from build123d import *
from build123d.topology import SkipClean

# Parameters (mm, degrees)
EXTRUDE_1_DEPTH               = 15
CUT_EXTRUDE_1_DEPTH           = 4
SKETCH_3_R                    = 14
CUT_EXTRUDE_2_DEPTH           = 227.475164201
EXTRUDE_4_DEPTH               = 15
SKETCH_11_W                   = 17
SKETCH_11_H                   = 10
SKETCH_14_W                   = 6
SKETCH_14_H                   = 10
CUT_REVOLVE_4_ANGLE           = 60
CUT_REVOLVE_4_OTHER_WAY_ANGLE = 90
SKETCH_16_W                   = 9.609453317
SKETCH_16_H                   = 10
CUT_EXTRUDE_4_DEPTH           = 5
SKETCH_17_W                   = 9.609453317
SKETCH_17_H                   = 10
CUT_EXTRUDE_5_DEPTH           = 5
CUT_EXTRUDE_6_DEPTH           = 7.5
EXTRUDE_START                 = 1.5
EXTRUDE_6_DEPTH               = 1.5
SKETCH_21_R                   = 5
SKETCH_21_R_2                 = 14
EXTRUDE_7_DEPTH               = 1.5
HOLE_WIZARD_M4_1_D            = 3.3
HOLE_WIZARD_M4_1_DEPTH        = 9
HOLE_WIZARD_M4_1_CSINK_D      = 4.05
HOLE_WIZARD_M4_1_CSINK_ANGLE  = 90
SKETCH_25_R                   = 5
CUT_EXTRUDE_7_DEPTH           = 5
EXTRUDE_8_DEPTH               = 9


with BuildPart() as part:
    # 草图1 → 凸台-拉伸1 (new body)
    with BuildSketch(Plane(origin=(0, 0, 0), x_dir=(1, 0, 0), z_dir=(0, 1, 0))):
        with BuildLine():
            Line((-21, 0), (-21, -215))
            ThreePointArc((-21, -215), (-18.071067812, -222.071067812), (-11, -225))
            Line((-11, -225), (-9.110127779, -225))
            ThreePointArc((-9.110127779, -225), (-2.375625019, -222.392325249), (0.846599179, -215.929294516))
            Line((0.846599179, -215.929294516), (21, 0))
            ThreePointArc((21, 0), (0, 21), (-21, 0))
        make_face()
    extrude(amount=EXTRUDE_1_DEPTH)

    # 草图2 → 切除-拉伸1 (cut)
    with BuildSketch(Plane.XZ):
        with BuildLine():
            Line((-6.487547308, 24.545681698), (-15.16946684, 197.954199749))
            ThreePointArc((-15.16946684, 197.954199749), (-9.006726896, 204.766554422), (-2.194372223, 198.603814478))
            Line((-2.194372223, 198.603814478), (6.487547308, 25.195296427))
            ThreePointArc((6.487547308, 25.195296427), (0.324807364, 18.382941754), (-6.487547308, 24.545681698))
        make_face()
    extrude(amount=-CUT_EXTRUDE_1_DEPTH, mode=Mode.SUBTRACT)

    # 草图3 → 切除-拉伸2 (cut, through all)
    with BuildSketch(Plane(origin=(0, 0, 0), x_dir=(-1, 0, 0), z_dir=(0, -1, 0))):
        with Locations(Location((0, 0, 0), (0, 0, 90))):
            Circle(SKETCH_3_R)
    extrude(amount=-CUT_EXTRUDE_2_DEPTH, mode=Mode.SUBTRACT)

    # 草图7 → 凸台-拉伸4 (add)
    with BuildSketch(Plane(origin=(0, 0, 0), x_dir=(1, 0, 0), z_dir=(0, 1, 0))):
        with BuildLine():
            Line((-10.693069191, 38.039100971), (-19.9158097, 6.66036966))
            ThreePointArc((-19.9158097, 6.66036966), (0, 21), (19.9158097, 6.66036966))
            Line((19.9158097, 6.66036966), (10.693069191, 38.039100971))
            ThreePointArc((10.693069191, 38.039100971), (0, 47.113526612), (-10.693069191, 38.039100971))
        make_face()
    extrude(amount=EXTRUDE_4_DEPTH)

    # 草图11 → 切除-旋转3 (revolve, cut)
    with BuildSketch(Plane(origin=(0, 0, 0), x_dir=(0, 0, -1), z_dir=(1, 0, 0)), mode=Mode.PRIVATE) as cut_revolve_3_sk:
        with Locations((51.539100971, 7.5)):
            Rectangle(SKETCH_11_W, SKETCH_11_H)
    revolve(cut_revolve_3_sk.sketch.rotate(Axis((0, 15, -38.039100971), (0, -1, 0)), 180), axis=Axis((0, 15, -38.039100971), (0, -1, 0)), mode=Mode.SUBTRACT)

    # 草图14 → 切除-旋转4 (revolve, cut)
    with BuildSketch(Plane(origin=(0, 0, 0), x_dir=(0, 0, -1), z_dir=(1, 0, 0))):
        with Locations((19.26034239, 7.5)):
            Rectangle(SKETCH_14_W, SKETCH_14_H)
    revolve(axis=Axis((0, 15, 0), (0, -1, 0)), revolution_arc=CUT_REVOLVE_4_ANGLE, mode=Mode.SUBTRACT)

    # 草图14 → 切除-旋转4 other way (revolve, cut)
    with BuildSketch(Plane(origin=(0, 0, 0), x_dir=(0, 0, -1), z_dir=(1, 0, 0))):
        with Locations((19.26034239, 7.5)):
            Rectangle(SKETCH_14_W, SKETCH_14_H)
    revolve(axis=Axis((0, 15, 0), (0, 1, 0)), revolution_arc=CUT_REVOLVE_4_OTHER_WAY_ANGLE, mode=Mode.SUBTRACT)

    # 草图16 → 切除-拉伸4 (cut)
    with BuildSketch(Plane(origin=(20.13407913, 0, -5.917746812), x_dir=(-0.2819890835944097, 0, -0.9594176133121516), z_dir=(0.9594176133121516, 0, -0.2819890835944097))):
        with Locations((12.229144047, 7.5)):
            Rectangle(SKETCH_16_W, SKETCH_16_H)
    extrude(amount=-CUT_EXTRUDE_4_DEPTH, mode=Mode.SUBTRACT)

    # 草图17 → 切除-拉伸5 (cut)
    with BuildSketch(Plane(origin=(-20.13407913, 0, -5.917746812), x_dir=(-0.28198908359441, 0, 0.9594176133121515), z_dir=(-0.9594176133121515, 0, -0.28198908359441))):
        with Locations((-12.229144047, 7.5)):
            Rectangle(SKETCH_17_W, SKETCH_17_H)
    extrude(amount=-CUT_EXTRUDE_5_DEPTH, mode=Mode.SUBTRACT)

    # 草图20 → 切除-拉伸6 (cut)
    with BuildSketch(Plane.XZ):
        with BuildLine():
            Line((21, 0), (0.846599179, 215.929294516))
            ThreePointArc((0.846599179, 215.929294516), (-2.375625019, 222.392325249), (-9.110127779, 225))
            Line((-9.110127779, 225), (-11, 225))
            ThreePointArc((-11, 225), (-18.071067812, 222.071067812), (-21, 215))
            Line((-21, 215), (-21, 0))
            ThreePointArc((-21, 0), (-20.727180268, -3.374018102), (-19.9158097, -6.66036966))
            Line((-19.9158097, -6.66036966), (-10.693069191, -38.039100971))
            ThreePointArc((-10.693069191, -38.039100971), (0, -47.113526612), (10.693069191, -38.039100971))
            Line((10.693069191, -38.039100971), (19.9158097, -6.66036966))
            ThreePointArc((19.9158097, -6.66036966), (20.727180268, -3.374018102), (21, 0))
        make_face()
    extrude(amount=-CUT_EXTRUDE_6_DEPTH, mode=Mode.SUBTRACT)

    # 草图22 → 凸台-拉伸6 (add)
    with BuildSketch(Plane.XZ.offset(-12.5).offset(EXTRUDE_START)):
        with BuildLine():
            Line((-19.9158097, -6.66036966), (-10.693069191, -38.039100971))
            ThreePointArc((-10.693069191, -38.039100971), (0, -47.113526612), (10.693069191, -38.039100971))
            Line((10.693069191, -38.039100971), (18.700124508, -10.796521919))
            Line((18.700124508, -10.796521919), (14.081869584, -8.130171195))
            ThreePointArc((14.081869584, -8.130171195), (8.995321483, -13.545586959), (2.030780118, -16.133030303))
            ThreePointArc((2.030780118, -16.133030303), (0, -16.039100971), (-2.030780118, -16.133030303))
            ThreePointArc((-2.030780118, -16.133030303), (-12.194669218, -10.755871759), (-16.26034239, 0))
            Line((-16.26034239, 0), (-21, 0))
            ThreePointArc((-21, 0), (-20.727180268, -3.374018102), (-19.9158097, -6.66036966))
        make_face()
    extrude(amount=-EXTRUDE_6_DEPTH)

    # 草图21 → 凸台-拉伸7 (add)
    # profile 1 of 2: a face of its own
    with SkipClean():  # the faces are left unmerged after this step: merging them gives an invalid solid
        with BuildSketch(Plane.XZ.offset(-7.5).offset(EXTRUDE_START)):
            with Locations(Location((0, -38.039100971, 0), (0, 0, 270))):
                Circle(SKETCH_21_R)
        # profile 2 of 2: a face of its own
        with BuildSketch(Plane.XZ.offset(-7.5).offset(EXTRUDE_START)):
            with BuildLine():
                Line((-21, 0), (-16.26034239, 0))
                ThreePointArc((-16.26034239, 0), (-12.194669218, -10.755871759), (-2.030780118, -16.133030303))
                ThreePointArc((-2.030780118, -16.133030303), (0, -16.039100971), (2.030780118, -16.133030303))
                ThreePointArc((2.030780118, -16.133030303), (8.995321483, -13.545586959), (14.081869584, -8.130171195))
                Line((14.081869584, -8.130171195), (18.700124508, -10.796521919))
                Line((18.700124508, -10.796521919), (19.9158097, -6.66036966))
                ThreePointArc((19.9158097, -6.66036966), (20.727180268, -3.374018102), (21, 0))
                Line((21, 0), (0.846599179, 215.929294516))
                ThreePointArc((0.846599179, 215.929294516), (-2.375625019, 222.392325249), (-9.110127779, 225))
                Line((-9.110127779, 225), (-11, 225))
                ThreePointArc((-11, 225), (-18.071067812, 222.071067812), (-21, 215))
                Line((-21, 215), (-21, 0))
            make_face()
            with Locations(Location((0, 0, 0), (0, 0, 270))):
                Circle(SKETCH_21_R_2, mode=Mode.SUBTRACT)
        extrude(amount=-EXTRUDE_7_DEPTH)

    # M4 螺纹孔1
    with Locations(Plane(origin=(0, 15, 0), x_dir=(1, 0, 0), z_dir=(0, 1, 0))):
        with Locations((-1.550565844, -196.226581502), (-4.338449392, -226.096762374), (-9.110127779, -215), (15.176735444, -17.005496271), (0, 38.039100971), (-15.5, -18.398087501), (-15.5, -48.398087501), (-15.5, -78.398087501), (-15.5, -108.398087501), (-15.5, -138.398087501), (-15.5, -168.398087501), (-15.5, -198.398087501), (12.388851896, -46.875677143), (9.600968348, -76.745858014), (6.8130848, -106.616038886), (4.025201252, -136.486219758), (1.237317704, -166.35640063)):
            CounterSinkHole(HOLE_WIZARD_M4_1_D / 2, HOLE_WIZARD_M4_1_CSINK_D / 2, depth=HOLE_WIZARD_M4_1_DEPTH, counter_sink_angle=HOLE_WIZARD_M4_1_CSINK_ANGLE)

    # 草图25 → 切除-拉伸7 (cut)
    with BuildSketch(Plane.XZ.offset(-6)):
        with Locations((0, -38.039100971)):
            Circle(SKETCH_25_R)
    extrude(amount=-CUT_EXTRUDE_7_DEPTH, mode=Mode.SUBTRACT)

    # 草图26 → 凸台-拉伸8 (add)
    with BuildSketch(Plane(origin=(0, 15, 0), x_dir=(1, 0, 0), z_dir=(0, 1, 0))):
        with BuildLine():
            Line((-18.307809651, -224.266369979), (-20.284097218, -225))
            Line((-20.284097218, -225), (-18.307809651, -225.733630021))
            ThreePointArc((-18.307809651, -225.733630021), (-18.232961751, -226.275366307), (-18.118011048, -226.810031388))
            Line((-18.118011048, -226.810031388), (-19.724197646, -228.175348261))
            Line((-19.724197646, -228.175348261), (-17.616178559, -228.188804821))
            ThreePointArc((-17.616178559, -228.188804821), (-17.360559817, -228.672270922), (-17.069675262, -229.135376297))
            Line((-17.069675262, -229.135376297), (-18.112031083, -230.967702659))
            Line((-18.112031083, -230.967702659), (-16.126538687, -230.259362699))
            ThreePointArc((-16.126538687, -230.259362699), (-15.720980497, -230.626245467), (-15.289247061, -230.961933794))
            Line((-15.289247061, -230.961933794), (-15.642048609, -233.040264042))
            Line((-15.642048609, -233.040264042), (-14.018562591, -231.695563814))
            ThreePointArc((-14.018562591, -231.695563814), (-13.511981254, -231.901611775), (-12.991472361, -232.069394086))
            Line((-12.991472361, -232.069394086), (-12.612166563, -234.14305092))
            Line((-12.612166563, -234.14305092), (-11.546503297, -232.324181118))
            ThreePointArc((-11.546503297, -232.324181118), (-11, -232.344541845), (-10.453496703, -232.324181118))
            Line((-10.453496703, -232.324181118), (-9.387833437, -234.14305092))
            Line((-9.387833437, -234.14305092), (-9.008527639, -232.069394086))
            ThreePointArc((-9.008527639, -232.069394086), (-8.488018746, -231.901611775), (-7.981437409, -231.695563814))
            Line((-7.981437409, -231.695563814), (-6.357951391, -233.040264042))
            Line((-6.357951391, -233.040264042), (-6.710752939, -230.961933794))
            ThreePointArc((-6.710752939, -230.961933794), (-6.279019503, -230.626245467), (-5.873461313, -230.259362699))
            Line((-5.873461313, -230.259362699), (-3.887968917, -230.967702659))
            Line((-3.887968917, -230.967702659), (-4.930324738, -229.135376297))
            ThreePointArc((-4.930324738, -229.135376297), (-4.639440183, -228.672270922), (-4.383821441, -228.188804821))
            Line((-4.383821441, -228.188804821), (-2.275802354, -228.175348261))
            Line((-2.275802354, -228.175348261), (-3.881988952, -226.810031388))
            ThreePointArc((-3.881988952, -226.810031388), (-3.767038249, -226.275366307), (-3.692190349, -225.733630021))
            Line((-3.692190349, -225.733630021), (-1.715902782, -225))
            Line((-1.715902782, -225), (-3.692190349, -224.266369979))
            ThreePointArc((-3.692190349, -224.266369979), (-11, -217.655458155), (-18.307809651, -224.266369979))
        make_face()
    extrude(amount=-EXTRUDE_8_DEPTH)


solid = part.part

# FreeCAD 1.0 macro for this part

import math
import FreeCAD as App
import Part
import Sketcher

V = App.Vector
Q = App.Units.Quantity


def add_polygon(sketch, points):
    """Adds a closed chain of lines whose ends are joined by coincident constraints."""
    first, n = sketch.GeometryCount, len(points)
    for a, b in zip(points, points[1:] + points[:1]):
        sketch.addGeometry(Part.LineSegment(App.Vector(*a, 0), App.Vector(*b, 0)), False)
    for i in range(n):
        sketch.addConstraint(Sketcher.Constraint("Coincident", first + i, 2, first + (i + 1) % n, 1))

doc = App.newDocument("Part")
params = doc.addObject("Spreadsheet::Sheet", "Params")
for row, (alias, value) in enumerate([
    ("sketch1_radius", "10 mm"),
    ("sketch1_radius2", "21 mm"),
    ("sketch1_height", "215 mm"),
    ("pad1_length", "15 mm"),
    ("pocket1_length", "4 mm"),
    ("sketch3_diameter", "28 mm"),
    ("sketch4_radius", "21 mm"),
    ("pad2_length", "15 mm"),
    ("sketch5_width", "10 mm"),
    ("sketch5_height", "17 mm"),
    ("groove_angle", "360 deg"),
    ("sketch6_width", "10 mm"),
    ("sketch6_height", "6 mm"),
    ("groove2_angle", "60 deg"),
    ("sketch7_width", "10 mm"),
    ("sketch7_height", "6 mm"),
    ("groove3_angle", "90 deg"),
    ("sketch8_height", "10 mm"),
    ("pocket3_length", "5 mm"),
    ("sketch9_height", "10 mm"),
    ("pocket4_length", "5 mm"),
    ("sketch10_radius", "10 mm"),
    ("sketch10_radius2", "21 mm"),
    ("sketch10_height", "215 mm"),
    ("pocket5_length", "7.5 mm"),
    ("sketch11_radius", "22 mm"),
    ("sketch11_radius2", "21 mm"),
    ("pad3_length", "1.5 mm"),
    ("sketch12_diameter", "10 mm"),
    ("sketch12_diameter2", "28 mm"),
    ("sketch12_radius", "22 mm"),
    ("sketch12_radius2", "21 mm"),
    ("sketch12_radius3", "10 mm"),
    ("pad4_length", "1.5 mm"),
    ("sketch13_diameter", "3.3 mm"),
    ("hole_diameter", "3.3 mm"),
    ("hole_depth", "9 mm"),
    ("hole_csink_diameter", "4.05 mm"),
    ("sketch14_diameter", "10 mm"),
    ("pocket6_length", "5 mm"),
    ("pad5_length", "9 mm"),
], start=1):
    params.set(f"A{row}", alias)
    params.set(f"B{row}", "=" + value)
    params.setAlias(f"B{row}", alias)

body = doc.addObject("PartDesign::Body", "Body")

# Sketch on XZ plane
sketch1 = body.newObject("Sketcher::SketchObject", "Sketch")
sketch1.AttachmentSupport = (doc.getObject("XZ_Plane"), [""])
sketch1.MapMode = "FlatFace"
sketch1.addGeometry(Part.LineSegment(V(-21, 0, 0), V(-21, 215, 0)), False)
sketch1.addGeometry(Part.ArcOfCircle(Part.Circle(V(-11, 215, 0), V(0, 0, 1), 10), math.radians(90), math.radians(180)), False)
sketch1.addGeometry(Part.LineSegment(V(-11, 225, 0), V(-9.1, 225, 0)), False)
sketch1.addGeometry(Part.ArcOfCircle(Part.Circle(V(-9.1, 215, 0), V(0, 0, 1), 10), math.radians(5), math.radians(90)), False)
sketch1.addGeometry(Part.LineSegment(V(0.8, 215.9, 0), V(21, 0, 0)), False)
sketch1.addGeometry(Part.ArcOfCircle(Part.Circle(V(0, 0, 0), V(0, 0, 1), 21), math.radians(180), math.radians(360)), False)
sketch1.addConstraint(Sketcher.Constraint("Tangent", 0, 2, 1, 2))
sketch1.addConstraint(Sketcher.Constraint("Tangent", 1, 1, 2, 1))
sketch1.addConstraint(Sketcher.Constraint("Tangent", 2, 2, 3, 2))
sketch1.addConstraint(Sketcher.Constraint("Tangent", 3, 1, 4, 1))
sketch1.addConstraint(Sketcher.Constraint("Coincident", 4, 2, 5, 2))
sketch1.addConstraint(Sketcher.Constraint("Tangent", 5, 1, 0, 1))
sketch1.addConstraint(Sketcher.Constraint("Vertical", 0))
sketch1.addConstraint(Sketcher.Constraint("Horizontal", 2))
sketch1.addConstraint(Sketcher.Constraint("Coincident", 5, 3, -1, 1))
sketch1.addConstraint(Sketcher.Constraint("Equal", 1, 3))
sketch1.addConstraint(Sketcher.Constraint("PointOnObject", 4, 2, -1))
sketch1.addConstraint(Sketcher.Constraint("Radius", 1, 10.0))
sketch1.addConstraint(Sketcher.Constraint("Radius", 5, 21.0))
sketch1.addConstraint(Sketcher.Constraint("DistanceY", 0, 1, 0, 2, 215.0))
sketch1.addConstraint(Sketcher.Constraint("DistanceX", -1, 1, 3, 1, 0.846599))
sketch1.setExpression("Constraints[11]", "Params.sketch1_radius")
sketch1.setExpression("Constraints[12]", "Params.sketch1_radius2")
sketch1.setExpression("Constraints[13]", "Params.sketch1_height")
pad1 = body.newObject("PartDesign::Pad", "Pad")
pad1.Profile = sketch1
pad1.setExpression("Length", "Params.pad1_length")
pad1.Reversed = True

# Sketch on XZ plane
sketch2 = body.newObject("Sketcher::SketchObject", "Sketch001")
sketch2.AttachmentSupport = (doc.getObject("XZ_Plane"), [""])
sketch2.MapMode = "FlatFace"
sketch2.addGeometry(Part.LineSegment(V(-15, 198, 0), V(-6, 25, 0)), False)
sketch2.addGeometry(Part.ArcOfCircle(Part.Circle(V(0, 25, 0), V(0, 0, 1), 6), math.radians(-177), math.radians(3)), False)
sketch2.addGeometry(Part.LineSegment(V(6, 25, 0), V(-2, 199, 0)), False)
sketch2.addGeometry(Part.ArcOfCircle(Part.Circle(V(-9, 198, 0), V(0, 0, 1), 6), math.radians(3), math.radians(183)), False)
sketch2.addConstraint(Sketcher.Constraint("Tangent", 0, 2, 1, 1))
sketch2.addConstraint(Sketcher.Constraint("Tangent", 1, 2, 2, 1))
sketch2.addConstraint(Sketcher.Constraint("Tangent", 2, 2, 3, 1))
sketch2.addConstraint(Sketcher.Constraint("Tangent", 3, 2, 0, 1))
sketch2.addConstraint(Sketcher.Constraint("Equal", 1, 3))
sketch2.addConstraint(Sketcher.Constraint("PointOnObject", 1, 3, -2))
sketch2.addConstraint(Sketcher.Constraint("Radius", 1, 6.495673))
sketch2.addConstraint(Sketcher.Constraint("DistanceY", -1, 1, 3, 2, 197.9542))
sketch2.addConstraint(Sketcher.Constraint("DistanceY", -1, 1, 1, 3, 24.870489))
sketch2.addConstraint(Sketcher.Constraint("DistanceX", 3, 3, -1, 1, 8.68192))
pocket1 = body.newObject("PartDesign::Pocket", "Pocket")
pocket1.Profile = sketch2
pocket1.setExpression("Length", "Params.pocket1_length")

# Sketch on XZ plane
sketch3 = body.newObject("Sketcher::SketchObject", "Sketch002")
sketch3.AttachmentSupport = (doc.getObject("XZ_Plane"), [""])
sketch3.MapMode = "FlatFace"
sketch3.addGeometry(Part.Circle(V(0, 0, 0), V(0, 0, 1), 14), False)
sketch3.addConstraint(Sketcher.Constraint("Coincident", 0, 3, -1, 1))
sketch3.addConstraint(Sketcher.Constraint("Diameter", 0, 28.0))
sketch3.setExpression("Constraints[1]", "Params.sketch3_diameter")
pocket2 = body.newObject("PartDesign::Pocket", "Pocket001")
pocket2.Profile = sketch3
pocket2.Type = "ThroughAll"

# Sketch on XZ plane
sketch4 = body.newObject("Sketcher::SketchObject", "Sketch003")
sketch4.AttachmentSupport = (doc.getObject("XZ_Plane"), [""])
sketch4.MapMode = "FlatFace"
sketch4.addGeometry(Part.LineSegment(V(-11, -38, 0), V(-20, -7, 0)), False)
sketch4.addGeometry(Part.ArcOfCircle(Part.Circle(V(0, 0, 0), V(0, 0, 1), 21), math.radians(-162), math.radians(-18)), False)
sketch4.addGeometry(Part.LineSegment(V(20, -7, 0), V(11, -38, 0)), False)
sketch4.addGeometry(Part.ArcOfCircle(Part.Circle(V(0, -36, 0), V(0, 0, 1), 11), math.radians(-171), math.radians(-9)), False)
sketch4.addConstraint(Sketcher.Constraint("Coincident", 0, 2, 1, 1))
sketch4.addConstraint(Sketcher.Constraint("Coincident", 1, 2, 2, 1))
sketch4.addConstraint(Sketcher.Constraint("Coincident", 2, 2, 3, 2))
sketch4.addConstraint(Sketcher.Constraint("Coincident", 3, 1, 0, 1))
sketch4.addConstraint(Sketcher.Constraint("Coincident", 1, 3, -1, 1))
sketch4.addConstraint(Sketcher.Constraint("Symmetric", 2, 2, 3, 1, -2))
sketch4.addConstraint(Sketcher.Constraint("Horizontal", 0, 2, 1, 2))
sketch4.addConstraint(Sketcher.Constraint("Radius", 1, 21.0))
sketch4.addConstraint(Sketcher.Constraint("Radius", 3, 10.837431))
sketch4.addConstraint(Sketcher.Constraint("DistanceY", 2, 2, -1, 1, 38.039101))
sketch4.addConstraint(Sketcher.Constraint("Distance", 0, 32.70602))
sketch4.addConstraint(Sketcher.Constraint("DistanceX", 0, 2, -1, 1, 19.91581))
sketch4.setExpression("Constraints[7]", "Params.sketch4_radius")
pad2 = body.newObject("PartDesign::Pad", "Pad001")
pad2.Profile = sketch4
pad2.setExpression("Length", "Params.pad2_length")
pad2.Reversed = True

# Sketch on YZ plane
sketch5 = body.newObject("Sketcher::SketchObject", "Sketch004")
sketch5.AttachmentSupport = (doc.getObject("YZ_Plane"), [""])
sketch5.MapMode = "FlatFace"
add_polygon(sketch5, [(12, -43), (2, -43), (2, -60), (12, -60)])  # lines 0-3
sketch5.addGeometry(Part.LineSegment(V(12, -38, 0), V(2, -38, 0)), True)  # axis
sketch5.addConstraint(Sketcher.Constraint("Horizontal", 0))
sketch5.addConstraint(Sketcher.Constraint("Vertical", 1))
sketch5.addConstraint(Sketcher.Constraint("Horizontal", 2))
sketch5.addConstraint(Sketcher.Constraint("Vertical", 3))
sketch5.addConstraint(Sketcher.Constraint("Horizontal", 4))
sketch5.addConstraint(Sketcher.Constraint("Vertical", 3, 2, 4, 1))
sketch5.addConstraint(Sketcher.Constraint("Vertical", 1, 2, 4, 2))
sketch5.addConstraint(Sketcher.Constraint("DistanceX", 0, 2, 0, 1, 10.0))
sketch5.addConstraint(Sketcher.Constraint("DistanceY", 1, 2, 1, 1, 17.0))
sketch5.addConstraint(Sketcher.Constraint("DistanceY", 3, 2, 4, 1, 5.0))
sketch5.addConstraint(Sketcher.Constraint("DistanceX", -1, 1, 0, 2, 2.5))
sketch5.addConstraint(Sketcher.Constraint("DistanceY", 0, 2, -1, 1, 43.039101))
sketch5.setExpression("Constraints[11]", "Params.sketch5_width")
sketch5.setExpression("Constraints[12]", "Params.sketch5_height")
groove = body.newObject("PartDesign::Groove", "Groove")
groove.Profile = sketch5
groove.ReferenceAxis = (sketch5, ["Axis0"])
groove.setExpression("Angle", "Params.groove_angle")

# Sketch on YZ plane
sketch6 = body.newObject("Sketcher::SketchObject", "Sketch005")
sketch6.AttachmentSupport = (doc.getObject("YZ_Plane"), [""])
sketch6.MapMode = "FlatFace"
add_polygon(sketch6, [(12, -16), (2, -16), (2, -22), (12, -22)])  # lines 0-3
sketch6.addConstraint(Sketcher.Constraint("Horizontal", 0))
sketch6.addConstraint(Sketcher.Constraint("Vertical", 1))
sketch6.addConstraint(Sketcher.Constraint("Horizontal", 2))
sketch6.addConstraint(Sketcher.Constraint("Vertical", 3))
sketch6.addConstraint(Sketcher.Constraint("DistanceX", 0, 2, 0, 1, 10.0))
sketch6.addConstraint(Sketcher.Constraint("DistanceY", 1, 2, 1, 1, 6.0))
sketch6.addConstraint(Sketcher.Constraint("DistanceX", -1, 1, 0, 2, 2.5))
sketch6.addConstraint(Sketcher.Constraint("DistanceY", 0, 2, -1, 1, 16.260342))
sketch6.setExpression("Constraints[8]", "Params.sketch6_width")
sketch6.setExpression("Constraints[9]", "Params.sketch6_height")
groove2 = body.newObject("PartDesign::Groove", "Groove001")
groove2.Profile = sketch6
groove2.ReferenceAxis = (sketch6, ["H_Axis"])
groove2.setExpression("Angle", "Params.groove2_angle")
groove2.Reversed = True

# Sketch on YZ plane
sketch7 = body.newObject("Sketcher::SketchObject", "Sketch006")
sketch7.AttachmentSupport = (doc.getObject("YZ_Plane"), [""])
sketch7.MapMode = "FlatFace"
add_polygon(sketch7, [(12, -16), (2, -16), (2, -22), (12, -22)])  # lines 0-3
sketch7.addConstraint(Sketcher.Constraint("Horizontal", 0))
sketch7.addConstraint(Sketcher.Constraint("Vertical", 1))
sketch7.addConstraint(Sketcher.Constraint("Horizontal", 2))
sketch7.addConstraint(Sketcher.Constraint("Vertical", 3))
sketch7.addConstraint(Sketcher.Constraint("DistanceX", 0, 2, 0, 1, 10.0))
sketch7.addConstraint(Sketcher.Constraint("DistanceY", 1, 2, 1, 1, 6.0))
sketch7.addConstraint(Sketcher.Constraint("DistanceX", -1, 1, 0, 2, 2.5))
sketch7.addConstraint(Sketcher.Constraint("DistanceY", 0, 2, -1, 1, 16.260342))
sketch7.setExpression("Constraints[8]", "Params.sketch7_width")
sketch7.setExpression("Constraints[9]", "Params.sketch7_height")
groove3 = body.newObject("PartDesign::Groove", "Groove002")
groove3.Profile = sketch7
groove3.ReferenceAxis = (sketch7, ["H_Axis"])
groove3.setExpression("Angle", "Params.groove3_angle")

# Sketch on an angled plane
sketch8 = body.newObject("Sketcher::SketchObject", "Sketch007")
sketch8.Placement = App.Placement(V(20.134079, 0, -5.917747), App.Rotation(V(-0.281989084, 0, -0.959417613), V(0, 1, 0), V(0.959417613, 0, -0.281989084), "ZXY"))
add_polygon(sketch8, [(7, 12), (7, 2), (17, 2), (17, 12)])  # lines 0-3
sketch8.addConstraint(Sketcher.Constraint("Vertical", 0))
sketch8.addConstraint(Sketcher.Constraint("Horizontal", 1))
sketch8.addConstraint(Sketcher.Constraint("Vertical", 2))
sketch8.addConstraint(Sketcher.Constraint("Horizontal", 3))
sketch8.addConstraint(Sketcher.Constraint("DistanceY", 0, 2, 0, 1, 10.0))
sketch8.addConstraint(Sketcher.Constraint("DistanceY", -1, 1, 0, 2, 2.5))
sketch8.addConstraint(Sketcher.Constraint("DistanceX", 1, 1, 1, 2, 9.609453))
sketch8.addConstraint(Sketcher.Constraint("DistanceX", -1, 1, 1, 2, 17.033871))
sketch8.setExpression("Constraints[8]", "Params.sketch8_height")
pocket3 = body.newObject("PartDesign::Pocket", "Pocket002")
pocket3.Profile = sketch8
pocket3.setExpression("Length", "Params.pocket3_length")

# Sketch on an angled plane
sketch9 = body.newObject("Sketcher::SketchObject", "Sketch008")
sketch9.Placement = App.Placement(V(-20.134079, 0, -5.917747), App.Rotation(V(-0.281989084, 0, 0.959417613), V(0, 1, 0), V(-0.959417613, 0, -0.281989084), "ZXY"))
add_polygon(sketch9, [(-17, 12), (-17, 2), (-7, 2), (-7, 12)])  # lines 0-3
sketch9.addConstraint(Sketcher.Constraint("Vertical", 0))
sketch9.addConstraint(Sketcher.Constraint("Horizontal", 1))
sketch9.addConstraint(Sketcher.Constraint("Vertical", 2))
sketch9.addConstraint(Sketcher.Constraint("Horizontal", 3))
sketch9.addConstraint(Sketcher.Constraint("DistanceY", 0, 2, 0, 1, 10.0))
sketch9.addConstraint(Sketcher.Constraint("DistanceY", -1, 1, 0, 2, 2.5))
sketch9.addConstraint(Sketcher.Constraint("DistanceX", 1, 1, 1, 2, 9.609453))
sketch9.addConstraint(Sketcher.Constraint("DistanceX", 0, 2, -1, 1, 17.033871))
sketch9.setExpression("Constraints[8]", "Params.sketch9_height")
pocket4 = body.newObject("PartDesign::Pocket", "Pocket003")
pocket4.Profile = sketch9
pocket4.setExpression("Length", "Params.pocket4_length")

# Sketch on XZ plane
sketch10 = body.newObject("Sketcher::SketchObject", "Sketch009")
sketch10.AttachmentSupport = (doc.getObject("XZ_Plane"), [""])
sketch10.MapMode = "FlatFace"
sketch10.addGeometry(Part.LineSegment(V(21, 0, 0), V(0.8, 215.9, 0)), False)
sketch10.addGeometry(Part.ArcOfCircle(Part.Circle(V(-9.1, 215, 0), V(0, 0, 1), 10), math.radians(5), math.radians(90)), False)
sketch10.addGeometry(Part.LineSegment(V(-9.1, 225, 0), V(-11, 225, 0)), False)
sketch10.addGeometry(Part.ArcOfCircle(Part.Circle(V(-11, 215, 0), V(0, 0, 1), 10), math.radians(90), math.radians(180)), False)
sketch10.addGeometry(Part.LineSegment(V(-21, 215, 0), V(-21, 0, 0)), False)
sketch10.addGeometry(Part.ArcOfCircle(Part.Circle(V(0, 0, 0), V(0, 0, 1), 21), math.radians(180), math.radians(198.49)), False)
sketch10.addGeometry(Part.LineSegment(V(-19.9, -6.7, 0), V(-10.7, -38, 0)), False)
sketch10.addGeometry(Part.ArcOfCircle(Part.Circle(V(0, -36.3, 0), V(0, 0, 1), 10.8), math.radians(-171), math.radians(-9)), False)
sketch10.addGeometry(Part.LineSegment(V(10.7, -38, 0), V(19.9, -6.7, 0)), False)
sketch10.addGeometry(Part.ArcOfCircle(Part.Circle(V(0, 0, 0), V(0, 0, 1), 21), math.radians(-18.49), math.radians(0)), False)
sketch10.addConstraint(Sketcher.Constraint("Tangent", 0, 2, 1, 1))
sketch10.addConstraint(Sketcher.Constraint("Tangent", 1, 2, 2, 1))
sketch10.addConstraint(Sketcher.Constraint("Tangent", 2, 2, 3, 1))
sketch10.addConstraint(Sketcher.Constraint("Tangent", 3, 2, 4, 1))
sketch10.addConstraint(Sketcher.Constraint("Tangent", 4, 2, 5, 1))
sketch10.addConstraint(Sketcher.Constraint("Coincident", 5, 2, 6, 1))
sketch10.addConstraint(Sketcher.Constraint("Coincident", 6, 2, 7, 1))
sketch10.addConstraint(Sketcher.Constraint("Coincident", 7, 2, 8, 1))
sketch10.addConstraint(Sketcher.Constraint("Coincident", 8, 2, 9, 1))
sketch10.addConstraint(Sketcher.Constraint("Coincident", 9, 2, 0, 1))
sketch10.addConstraint(Sketcher.Constraint("Horizontal", 2))
sketch10.addConstraint(Sketcher.Constraint("Vertical", 4))
sketch10.addConstraint(Sketcher.Constraint("Coincident", 5, 3, -1, 1))
sketch10.addConstraint(Sketcher.Constraint("Coincident", 9, 3, -1, 1))
sketch10.addConstraint(Sketcher.Constraint("Equal", 1, 3))
sketch10.addConstraint(Sketcher.Constraint("Equal", 5, 9))
sketch10.addConstraint(Sketcher.Constraint("Symmetric", 6, 2, 7, 2, -2))
sketch10.addConstraint(Sketcher.Constraint("PointOnObject", 9, 2, -1))
sketch10.addConstraint(Sketcher.Constraint("Horizontal", 5, 2, 8, 2))
sketch10.addConstraint(Sketcher.Constraint("Radius", 1, 10.0))
sketch10.addConstraint(Sketcher.Constraint("Radius", 5, 21.0))
sketch10.addConstraint(Sketcher.Constraint("DistanceY", 4, 2, 4, 1, 215.0))
sketch10.addConstraint(Sketcher.Constraint("Radius", 7, 10.837431))
sketch10.addConstraint(Sketcher.Constraint("DistanceX", -1, 1, 0, 2, 0.846599))
sketch10.addConstraint(Sketcher.Constraint("DistanceY", 6, 2, -1, 1, 38.039101))
sketch10.addConstraint(Sketcher.Constraint("Distance", 6, 32.70602))
sketch10.addConstraint(Sketcher.Constraint("DistanceX", 5, 2, -1, 1, 19.91581))
sketch10.setExpression("Constraints[19]", "Params.sketch10_radius")
sketch10.setExpression("Constraints[20]", "Params.sketch10_radius2")
sketch10.setExpression("Constraints[21]", "Params.sketch10_height")
pocket5 = body.newObject("PartDesign::Pocket", "Pocket004")
pocket5.Profile = sketch10
pocket5.setExpression("Length", "Params.pocket5_length")

# Sketch on XZ plane
sketch11 = body.newObject("Sketcher::SketchObject", "Sketch010")
sketch11.AttachmentSupport = (doc.getObject("XZ_Plane"), [""])
sketch11.MapMode = "FlatFace"
sketch11.AttachmentOffset = App.Placement(V(0, 0, -11), App.Rotation())
sketch11.addGeometry(Part.LineSegment(V(-19.9, -6.7, 0), V(-10.7, -38, 0)), False)
sketch11.addGeometry(Part.ArcOfCircle(Part.Circle(V(0, -36.3, 0), V(0, 0, 1), 10.8), math.radians(-171), math.radians(-9)), False)
sketch11.addGeometry(Part.LineSegment(V(10.7, -38, 0), V(18.7, -10.8, 0)), False)
sketch11.addGeometry(Part.LineSegment(V(18.7, -10.8, 0), V(14.1, -8.1, 0)), False)
sketch11.addGeometry(Part.ArcOfCircle(Part.Circle(V(0, 0, 0), V(0, 0, 1), 16.3), math.radians(-83), math.radians(-30)), False)
sketch11.addGeometry(Part.ArcOfCircle(Part.Circle(V(0, -38, 0), V(0, 0, 1), 22), math.radians(84.7), math.radians(95.3)), False)
sketch11.addGeometry(Part.ArcOfCircle(Part.Circle(V(0, 0, 0), V(0, 0, 1), 16.3), math.radians(-180), math.radians(-97)), False)
sketch11.addGeometry(Part.LineSegment(V(-16.3, 0, 0), V(-21, 0, 0)), False)
sketch11.addGeometry(Part.ArcOfCircle(Part.Circle(V(0, 0, 0), V(0, 0, 1), 21), math.radians(180), math.radians(198.49)), False)
sketch11.addConstraint(Sketcher.Constraint("Coincident", 0, 2, 1, 1))
sketch11.addConstraint(Sketcher.Constraint("Coincident", 1, 2, 2, 1))
sketch11.addConstraint(Sketcher.Constraint("Coincident", 2, 2, 3, 1))
sketch11.addConstraint(Sketcher.Constraint("Coincident", 3, 2, 4, 2))
sketch11.addConstraint(Sketcher.Constraint("Coincident", 4, 1, 5, 1))
sketch11.addConstraint(Sketcher.Constraint("Coincident", 5, 2, 6, 2))
sketch11.addConstraint(Sketcher.Constraint("Coincident", 6, 1, 7, 1))
sketch11.addConstraint(Sketcher.Constraint("Coincident", 7, 2, 8, 1))
sketch11.addConstraint(Sketcher.Constraint("Coincident", 8, 2, 0, 1))
sketch11.addConstraint(Sketcher.Constraint("Horizontal", 7))
sketch11.addConstraint(Sketcher.Constraint("Coincident", 4, 3, -1, 1))
sketch11.addConstraint(Sketcher.Constraint("Coincident", 6, 3, -1, 1))
sketch11.addConstraint(Sketcher.Constraint("Coincident", 8, 3, -1, 1))
sketch11.addConstraint(Sketcher.Constraint("Equal", 4, 6))
sketch11.addConstraint(Sketcher.Constraint("Symmetric", 0, 2, 1, 2, -2))
sketch11.addConstraint(Sketcher.Constraint("PointOnObject", 5, 3, -2))
sketch11.addConstraint(Sketcher.Constraint("PointOnObject", 6, 1, -1))
sketch11.addConstraint(Sketcher.Constraint("Horizontal", 5, 3, 0, 2))
sketch11.addConstraint(Sketcher.Constraint("Radius", 5, 22.0))
sketch11.addConstraint(Sketcher.Constraint("Radius", 8, 21.0))
sketch11.addConstraint(Sketcher.Constraint("Angle", 3, Q("150 deg")))
sketch11.addConstraint(Sketcher.Constraint("Radius", 1, 10.837431))
sketch11.addConstraint(Sketcher.Constraint("Radius", 4, 16.260342))
sketch11.addConstraint(Sketcher.Constraint("Distance", 3, 5.332701))
sketch11.addConstraint(Sketcher.Constraint("DistanceY", 5, 3, -1, 1, 38.039101))
sketch11.addConstraint(Sketcher.Constraint("DistanceX", 1, 2, 3, 2, 3.3888))
sketch11.addConstraint(Sketcher.Constraint("Distance", 0, 32.70602))
sketch11.addConstraint(Sketcher.Constraint("DistanceX", 0, 2, -1, 1, 10.693069))
sketch11.setExpression("Constraints[18]", "Params.sketch11_radius")
sketch11.setExpression("Constraints[19]", "Params.sketch11_radius2")
pad3 = body.newObject("PartDesign::Pad", "Pad002")
pad3.Profile = sketch11
pad3.setExpression("Length", "Params.pad3_length")
pad3.Reversed = True

# Sketch on XZ plane
sketch12 = body.newObject("Sketcher::SketchObject", "Sketch011")
sketch12.AttachmentSupport = (doc.getObject("XZ_Plane"), [""])
sketch12.MapMode = "FlatFace"
sketch12.AttachmentOffset = App.Placement(V(0, 0, -6), App.Rotation())
sketch12.addGeometry(Part.Circle(V(0, -38, 0), V(0, 0, 1), 5), False)
sketch12.addGeometry(Part.LineSegment(V(-21, 0, 0), V(-16.3, 0, 0)), False)
sketch12.addGeometry(Part.ArcOfCircle(Part.Circle(V(0, 0, 0), V(0, 0, 1), 16.3), math.radians(-180), math.radians(-97)), False)
sketch12.addGeometry(Part.ArcOfCircle(Part.Circle(V(0, -38, 0), V(0, 0, 1), 22), math.radians(84.7), math.radians(95.3)), False)
sketch12.addGeometry(Part.ArcOfCircle(Part.Circle(V(0, 0, 0), V(0, 0, 1), 16.3), math.radians(-83), math.radians(-30)), False)
sketch12.addGeometry(Part.LineSegment(V(14.1, -8.1, 0), V(18.7, -10.8, 0)), False)
sketch12.addGeometry(Part.LineSegment(V(18.7, -10.8, 0), V(19.9, -6.7, 0)), False)
sketch12.addGeometry(Part.ArcOfCircle(Part.Circle(V(0, 0, 0), V(0, 0, 1), 21), math.radians(-18.49), math.radians(0)), False)
sketch12.addGeometry(Part.LineSegment(V(21, 0, 0), V(0.8, 215.9, 0)), False)
sketch12.addGeometry(Part.ArcOfCircle(Part.Circle(V(-9.1, 215, 0), V(0, 0, 1), 10), math.radians(5), math.radians(90)), False)
sketch12.addGeometry(Part.LineSegment(V(-9.1, 225, 0), V(-11, 225, 0)), False)
sketch12.addGeometry(Part.ArcOfCircle(Part.Circle(V(-11, 215, 0), V(0, 0, 1), 10), math.radians(90), math.radians(180)), False)
sketch12.addGeometry(Part.LineSegment(V(-21, 215, 0), V(-21, 0, 0)), False)
sketch12.addGeometry(Part.Circle(V(0, 0, 0), V(0, 0, 1), 14), False)
sketch12.addConstraint(Sketcher.Constraint("Coincident", 1, 2, 2, 1))
sketch12.addConstraint(Sketcher.Constraint("Coincident", 2, 2, 3, 2))
sketch12.addConstraint(Sketcher.Constraint("Coincident", 3, 1, 4, 1))
sketch12.addConstraint(Sketcher.Constraint("Coincident", 4, 2, 5, 1))
sketch12.addConstraint(Sketcher.Constraint("Coincident", 5, 2, 6, 1))
sketch12.addConstraint(Sketcher.Constraint("Coincident", 6, 2, 7, 1))
sketch12.addConstraint(Sketcher.Constraint("Coincident", 7, 2, 8, 1))
sketch12.addConstraint(Sketcher.Constraint("Tangent", 8, 2, 9, 1))
sketch12.addConstraint(Sketcher.Constraint("Tangent", 9, 2, 10, 1))
sketch12.addConstraint(Sketcher.Constraint("Tangent", 10, 2, 11, 1))
sketch12.addConstraint(Sketcher.Constraint("Tangent", 11, 2, 12, 1))
sketch12.addConstraint(Sketcher.Constraint("Coincident", 12, 2, 1, 1))
sketch12.addConstraint(Sketcher.Constraint("Horizontal", 1))
sketch12.addConstraint(Sketcher.Constraint("Horizontal", 10))
sketch12.addConstraint(Sketcher.Constraint("Vertical", 12))
sketch12.addConstraint(Sketcher.Constraint("Coincident", 2, 3, -1, 1))
sketch12.addConstraint(Sketcher.Constraint("Coincident", 4, 3, -1, 1))
sketch12.addConstraint(Sketcher.Constraint("Coincident", 7, 3, -1, 1))
sketch12.addConstraint(Sketcher.Constraint("Coincident", 13, 3, -1, 1))
sketch12.addConstraint(Sketcher.Constraint("Coincident", 3, 3, 0, 3))
sketch12.addConstraint(Sketcher.Constraint("Equal", 2, 4))
sketch12.addConstraint(Sketcher.Constraint("Equal", 9, 11))
sketch12.addConstraint(Sketcher.Constraint("Symmetric", 7, 2, 12, 2, -1, 1))
sketch12.addConstraint(Sketcher.Constraint("PointOnObject", 0, 3, -2))
sketch12.addConstraint(Sketcher.Constraint("PointOnObject", 1, 2, -1))
sketch12.addConstraint(Sketcher.Constraint("Diameter", 0, 10.0))
sketch12.addConstraint(Sketcher.Constraint("Diameter", 13, 28.0))
sketch12.addConstraint(Sketcher.Constraint("Radius", 3, 22.0))
sketch12.addConstraint(Sketcher.Constraint("Radius", 7, 21.0))
sketch12.addConstraint(Sketcher.Constraint("Radius", 9, 10.0))
sketch12.addConstraint(Sketcher.Constraint("DistanceY", 12, 2, 12, 1, 215.0))
sketch12.addConstraint(Sketcher.Constraint("Angle", 5, Q("-30 deg")))
sketch12.addConstraint(Sketcher.Constraint("Radius", 2, 16.260342))
sketch12.addConstraint(Sketcher.Constraint("Distance", 5, 5.332701))
sketch12.addConstraint(Sketcher.Constraint("DistanceY", 0, 3, -1, 1, 38.039101))
sketch12.addConstraint(Sketcher.Constraint("DistanceX", -1, 1, 8, 2, 0.846599))
sketch12.addConstraint(Sketcher.Constraint("DistanceY", 4, 2, 6, 2, 1.469802))
sketch12.addConstraint(Sketcher.Constraint("DistanceX", -1, 1, 4, 2, 14.08187))
sketch12.setExpression("Constraints[25]", "Params.sketch12_diameter")
sketch12.setExpression("Constraints[26]", "Params.sketch12_diameter2")
sketch12.setExpression("Constraints[27]", "Params.sketch12_radius")
sketch12.setExpression("Constraints[28]", "Params.sketch12_radius2")
sketch12.setExpression("Constraints[29]", "Params.sketch12_radius3")
pad4 = body.newObject("PartDesign::Pad", "Pad003")
pad4.Profile = sketch12
pad4.setExpression("Length", "Params.pad4_length")
pad4.Reversed = True

# Sketch on XZ plane
sketch13 = body.newObject("Sketcher::SketchObject", "Sketch012")
sketch13.AttachmentSupport = (doc.getObject("XZ_Plane"), [""])
sketch13.MapMode = "FlatFace"
sketch13.AttachmentOffset = App.Placement(V(0, 0, -15), App.Rotation())
sketch13.addGeometry(Part.Circle(V(-1.6, 196.2, 0), V(0, 0, 1), 1.6), False)
sketch13.addGeometry(Part.Circle(V(-4.3, 226.1, 0), V(0, 0, 1), 1.6), False)
sketch13.addGeometry(Part.Circle(V(-9.1, 215, 0), V(0, 0, 1), 1.6), False)
sketch13.addGeometry(Part.Circle(V(15.2, 17, 0), V(0, 0, 1), 1.6), False)
sketch13.addGeometry(Part.Circle(V(0, -38, 0), V(0, 0, 1), 1.6), False)
sketch13.addGeometry(Part.Circle(V(-15.5, 18.4, 0), V(0, 0, 1), 1.6), False)
sketch13.addGeometry(Part.Circle(V(-15.5, 48.4, 0), V(0, 0, 1), 1.6), False)
sketch13.addGeometry(Part.Circle(V(-15.5, 78.4, 0), V(0, 0, 1), 1.6), False)
sketch13.addGeometry(Part.Circle(V(-15.5, 108.4, 0), V(0, 0, 1), 1.6), False)
sketch13.addGeometry(Part.Circle(V(-15.5, 138.4, 0), V(0, 0, 1), 1.6), False)
sketch13.addGeometry(Part.Circle(V(-15.5, 168.4, 0), V(0, 0, 1), 1.6), False)
sketch13.addGeometry(Part.Circle(V(-15.5, 198.4, 0), V(0, 0, 1), 1.6), False)
sketch13.addGeometry(Part.Circle(V(12.4, 46.9, 0), V(0, 0, 1), 1.6), False)
sketch13.addGeometry(Part.Circle(V(9.6, 76.7, 0), V(0, 0, 1), 1.6), False)
sketch13.addGeometry(Part.Circle(V(6.8, 106.6, 0), V(0, 0, 1), 1.6), False)
sketch13.addGeometry(Part.Circle(V(4, 136.5, 0), V(0, 0, 1), 1.6), False)
sketch13.addGeometry(Part.Circle(V(1.2, 166.4, 0), V(0, 0, 1), 1.6), False)
sketch13.addConstraint(Sketcher.Constraint("Equal", 0, 1))
sketch13.addConstraint(Sketcher.Constraint("Equal", 1, 2))
sketch13.addConstraint(Sketcher.Constraint("Equal", 2, 3))
sketch13.addConstraint(Sketcher.Constraint("Equal", 3, 4))
sketch13.addConstraint(Sketcher.Constraint("Equal", 4, 5))
sketch13.addConstraint(Sketcher.Constraint("Equal", 5, 6))
sketch13.addConstraint(Sketcher.Constraint("Equal", 6, 7))
sketch13.addConstraint(Sketcher.Constraint("Equal", 7, 8))
sketch13.addConstraint(Sketcher.Constraint("Equal", 8, 9))
sketch13.addConstraint(Sketcher.Constraint("Equal", 9, 10))
sketch13.addConstraint(Sketcher.Constraint("Equal", 10, 11))
sketch13.addConstraint(Sketcher.Constraint("Equal", 11, 12))
sketch13.addConstraint(Sketcher.Constraint("Equal", 12, 13))
sketch13.addConstraint(Sketcher.Constraint("Equal", 13, 14))
sketch13.addConstraint(Sketcher.Constraint("Equal", 14, 15))
sketch13.addConstraint(Sketcher.Constraint("Equal", 15, 16))
sketch13.addConstraint(Sketcher.Constraint("PointOnObject", 4, 3, -2))
sketch13.addConstraint(Sketcher.Constraint("Vertical", 5, 3, 6, 3))
sketch13.addConstraint(Sketcher.Constraint("Vertical", 6, 3, 7, 3))
sketch13.addConstraint(Sketcher.Constraint("Vertical", 7, 3, 8, 3))
sketch13.addConstraint(Sketcher.Constraint("Vertical", 8, 3, 9, 3))
sketch13.addConstraint(Sketcher.Constraint("Vertical", 9, 3, 10, 3))
sketch13.addConstraint(Sketcher.Constraint("Vertical", 10, 3, 11, 3))
sketch13.addConstraint(Sketcher.Constraint("Diameter", 0, 3.3))
sketch13.addConstraint(Sketcher.Constraint("DistanceY", -1, 1, 2, 3, 215.0))
sketch13.addConstraint(Sketcher.Constraint("DistanceY", 5, 3, 6, 3, 30.0))
sketch13.addConstraint(Sketcher.Constraint("DistanceY", 6, 3, 7, 3, 30.0))
sketch13.addConstraint(Sketcher.Constraint("DistanceY", 7, 3, 8, 3, 30.0))
sketch13.addConstraint(Sketcher.Constraint("DistanceY", 8, 3, 9, 3, 30.0))
sketch13.addConstraint(Sketcher.Constraint("DistanceY", 9, 3, 10, 3, 30.0))
sketch13.addConstraint(Sketcher.Constraint("DistanceY", 10, 3, 11, 3, 30.0))
sketch13.addConstraint(Sketcher.Constraint("DistanceX", 5, 3, -1, 1, 15.5))
sketch13.addConstraint(Sketcher.Constraint("DistanceY", 4, 3, -1, 1, 38.039101))
sketch13.addConstraint(Sketcher.Constraint("DistanceX", -1, 1, 15, 3, 4.025201))
sketch13.addConstraint(Sketcher.Constraint("DistanceY", -1, 1, 16, 3, 166.356401))
sketch13.addConstraint(Sketcher.Constraint("DistanceX", 0, 3, 3, 3, 16.727301))
sketch13.addConstraint(Sketcher.Constraint("DistanceY", -1, 1, 0, 3, 196.226582))
sketch13.addConstraint(Sketcher.Constraint("DistanceX", 1, 3, -1, 1, 4.338449))
sketch13.addConstraint(Sketcher.Constraint("DistanceX", -1, 1, 12, 3, 12.388852))
sketch13.addConstraint(Sketcher.Constraint("DistanceX", -1, 1, 13, 3, 9.600968))
sketch13.addConstraint(Sketcher.Constraint("DistanceY", -1, 1, 13, 3, 76.745858))
sketch13.addConstraint(Sketcher.Constraint("DistanceY", -1, 1, 14, 3, 106.616039))
sketch13.addConstraint(Sketcher.Constraint("DistanceY", -1, 1, 15, 3, 136.48622))
sketch13.addConstraint(Sketcher.Constraint("DistanceY", 0, 3, 1, 3, 29.870181))
sketch13.addConstraint(Sketcher.Constraint("DistanceX", 2, 3, 1, 3, 4.771678))
sketch13.addConstraint(Sketcher.Constraint("DistanceX", 2, 3, 0, 3, 7.559562))
sketch13.addConstraint(Sketcher.Constraint("DistanceY", 3, 3, 5, 3, 1.392591))
sketch13.addConstraint(Sketcher.Constraint("DistanceY", 4, 3, 5, 3, 56.437188))
sketch13.addConstraint(Sketcher.Constraint("DistanceY", 12, 3, 6, 3, 1.52241))
sketch13.addConstraint(Sketcher.Constraint("DistanceX", -1, 1, 14, 3, 6.813085))
sketch13.addConstraint(Sketcher.Constraint("DistanceX", -1, 1, 16, 3, 1.237318))
sketch13.setExpression("Constraints[23]", "Params.sketch13_diameter")
doc.recompute()
hole = body.newObject("PartDesign::Hole", "Hole")
hole.Profile = sketch13
hole.ThreadType = "None"
hole.setExpression("Diameter", "Params.hole_diameter")
hole.DepthType = "Dimension"
hole.setExpression("Depth", "Params.hole_depth")
hole.DrillPoint = "Flat"
hole.HoleCutType = "Countersink"
hole.setExpression("HoleCutDiameter", "Params.hole_csink_diameter")
hole.HoleCutCountersinkAngle = 90
hole.Reversed = True

# Sketch on XZ plane
sketch14 = body.newObject("Sketcher::SketchObject", "Sketch013")
sketch14.AttachmentSupport = (doc.getObject("XZ_Plane"), [""])
sketch14.MapMode = "FlatFace"
sketch14.AttachmentOffset = App.Placement(V(0, 0, -6), App.Rotation())
sketch14.addGeometry(Part.Circle(V(0, -38, 0), V(0, 0, 1), 5), False)
sketch14.addConstraint(Sketcher.Constraint("PointOnObject", 0, 3, -2))
sketch14.addConstraint(Sketcher.Constraint("Diameter", 0, 10.0))
sketch14.addConstraint(Sketcher.Constraint("DistanceY", 0, 3, -1, 1, 38.039101))
sketch14.setExpression("Constraints[1]", "Params.sketch14_diameter")
pocket6 = body.newObject("PartDesign::Pocket", "Pocket005")
pocket6.Profile = sketch14
pocket6.setExpression("Length", "Params.pocket6_length")

# Sketch on XZ plane
sketch15 = body.newObject("Sketcher::SketchObject", "Sketch014")
sketch15.AttachmentSupport = (doc.getObject("XZ_Plane"), [""])
sketch15.MapMode = "FlatFace"
sketch15.AttachmentOffset = App.Placement(V(0, 0, -15), App.Rotation())
sketch15.addGeometry(Part.LineSegment(V(-18.30781, 224.26637, 0), V(-20.284097, 225, 0)), False)
sketch15.addGeometry(Part.LineSegment(V(-20.284097, 225, 0), V(-18.30781, 225.73363, 0)), False)
sketch15.addGeometry(Part.ArcOfCircle(Part.Circle(V(-11, 225, 0), V(0, 0, 1), 7.344542), math.radians(165.732709), math.radians(174.267291)), False)
sketch15.addGeometry(Part.LineSegment(V(-18.118011, 226.810031, 0), V(-19.724198, 228.175348, 0)), False)
sketch15.addGeometry(Part.LineSegment(V(-19.724198, 228.175348, 0), V(-17.616179, 228.188805, 0)), False)
sketch15.addGeometry(Part.ArcOfCircle(Part.Circle(V(-11, 225, 0), V(0, 0, 1), 7.344542), math.radians(145.732709), math.radians(154.267291)), False)
sketch15.addGeometry(Part.LineSegment(V(-17.069675, 229.135376, 0), V(-18.112031, 230.967703, 0)), False)
sketch15.addGeometry(Part.LineSegment(V(-18.112031, 230.967703, 0), V(-16.126539, 230.259363, 0)), False)
sketch15.addGeometry(Part.ArcOfCircle(Part.Circle(V(-11, 225, 0), V(0, 0, 1), 7.344542), math.radians(125.732709), math.radians(134.267291)), False)
sketch15.addGeometry(Part.LineSegment(V(-15.289247, 230.961934, 0), V(-15.642049, 233.040264, 0)), False)
sketch15.addGeometry(Part.LineSegment(V(-15.642049, 233.040264, 0), V(-14.018563, 231.695564, 0)), False)
sketch15.addGeometry(Part.ArcOfCircle(Part.Circle(V(-11, 225, 0), V(0, 0, 1), 7.344542), math.radians(105.732709), math.radians(114.267291)), False)
sketch15.addGeometry(Part.LineSegment(V(-12.991472, 232.069394, 0), V(-12.612167, 234.143051, 0)), False)
sketch15.addGeometry(Part.LineSegment(V(-12.612167, 234.143051, 0), V(-11.546503, 232.324181, 0)), False)
sketch15.addGeometry(Part.ArcOfCircle(Part.Circle(V(-11, 225, 0), V(0, 0, 1), 7.344542), math.radians(85.732709), math.radians(94.267291)), False)
sketch15.addGeometry(Part.LineSegment(V(-10.453497, 232.324181, 0), V(-9.387833, 234.143051, 0)), False)
sketch15.addGeometry(Part.LineSegment(V(-9.387833, 234.143051, 0), V(-9.008528, 232.069394, 0)), False)
sketch15.addGeometry(Part.ArcOfCircle(Part.Circle(V(-11, 225, 0), V(0, 0, 1), 7.344542), math.radians(65.732709), math.radians(74.267291)), False)
sketch15.addGeometry(Part.LineSegment(V(-7.981437, 231.695564, 0), V(-6.357951, 233.040264, 0)), False)
sketch15.addGeometry(Part.LineSegment(V(-6.357951, 233.040264, 0), V(-6.710753, 230.961934, 0)), False)
sketch15.addGeometry(Part.ArcOfCircle(Part.Circle(V(-11, 225, 0), V(0, 0, 1), 7.344542), math.radians(45.732709), math.radians(54.267291)), False)
sketch15.addGeometry(Part.LineSegment(V(-5.873461, 230.259363, 0), V(-3.887969, 230.967703, 0)), False)
sketch15.addGeometry(Part.LineSegment(V(-3.887969, 230.967703, 0), V(-4.930325, 229.135376, 0)), False)
sketch15.addGeometry(Part.ArcOfCircle(Part.Circle(V(-11, 225, 0), V(0, 0, 1), 7.344542), math.radians(25.732709), math.radians(34.267291)), False)
sketch15.addGeometry(Part.LineSegment(V(-4.383821, 228.188805, 0), V(-2.275802, 228.175348, 0)), False)
sketch15.addGeometry(Part.LineSegment(V(-2.275802, 228.175348, 0), V(-3.881989, 226.810031, 0)), False)
sketch15.addGeometry(Part.ArcOfCircle(Part.Circle(V(-11, 225, 0), V(0, 0, 1), 7.344542), math.radians(5.732709), math.radians(14.267291)), False)
sketch15.addGeometry(Part.LineSegment(V(-3.69219, 225.73363, 0), V(-1.715903, 225, 0)), False)
sketch15.addGeometry(Part.LineSegment(V(-1.715903, 225, 0), V(-3.69219, 224.26637, 0)), False)
sketch15.addGeometry(Part.ArcOfCircle(Part.Circle(V(-11, 225, 0), V(0, 0, 1), 7.344542), math.radians(-174.267291), math.radians(-5.732709)), False)
sketch15.addConstraint(Sketcher.Constraint("Coincident", 0, 2, 1, 1))
sketch15.addConstraint(Sketcher.Constraint("Coincident", 1, 2, 2, 2))
sketch15.addConstraint(Sketcher.Constraint("Coincident", 2, 1, 3, 1))
sketch15.addConstraint(Sketcher.Constraint("Coincident", 3, 2, 4, 1))
sketch15.addConstraint(Sketcher.Constraint("Coincident", 4, 2, 5, 2))
sketch15.addConstraint(Sketcher.Constraint("Coincident", 5, 1, 6, 1))
sketch15.addConstraint(Sketcher.Constraint("Coincident", 6, 2, 7, 1))
sketch15.addConstraint(Sketcher.Constraint("Coincident", 7, 2, 8, 2))
sketch15.addConstraint(Sketcher.Constraint("Coincident", 8, 1, 9, 1))
sketch15.addConstraint(Sketcher.Constraint("Coincident", 9, 2, 10, 1))
sketch15.addConstraint(Sketcher.Constraint("Coincident", 10, 2, 11, 2))
sketch15.addConstraint(Sketcher.Constraint("Coincident", 11, 1, 12, 1))
sketch15.addConstraint(Sketcher.Constraint("Coincident", 12, 2, 13, 1))
sketch15.addConstraint(Sketcher.Constraint("Coincident", 13, 2, 14, 2))
sketch15.addConstraint(Sketcher.Constraint("Coincident", 14, 1, 15, 1))
sketch15.addConstraint(Sketcher.Constraint("Coincident", 15, 2, 16, 1))
sketch15.addConstraint(Sketcher.Constraint("Coincident", 16, 2, 17, 2))
sketch15.addConstraint(Sketcher.Constraint("Coincident", 17, 1, 18, 1))
sketch15.addConstraint(Sketcher.Constraint("Coincident", 18, 2, 19, 1))
sketch15.addConstraint(Sketcher.Constraint("Coincident", 19, 2, 20, 2))
sketch15.addConstraint(Sketcher.Constraint("Coincident", 20, 1, 21, 1))
sketch15.addConstraint(Sketcher.Constraint("Coincident", 21, 2, 22, 1))
sketch15.addConstraint(Sketcher.Constraint("Coincident", 22, 2, 23, 2))
sketch15.addConstraint(Sketcher.Constraint("Coincident", 23, 1, 24, 1))
sketch15.addConstraint(Sketcher.Constraint("Coincident", 24, 2, 25, 1))
sketch15.addConstraint(Sketcher.Constraint("Coincident", 25, 2, 26, 2))
sketch15.addConstraint(Sketcher.Constraint("Coincident", 26, 1, 27, 1))
sketch15.addConstraint(Sketcher.Constraint("Coincident", 27, 2, 28, 1))
sketch15.addConstraint(Sketcher.Constraint("Coincident", 28, 2, 29, 2))
sketch15.addConstraint(Sketcher.Constraint("Coincident", 29, 1, 0, 1))
sketch15.addConstraint(Sketcher.Constraint("Coincident", 5, 3, 2, 3))
sketch15.addConstraint(Sketcher.Constraint("Coincident", 8, 3, 2, 3))
sketch15.addConstraint(Sketcher.Constraint("Coincident", 11, 3, 2, 3))
sketch15.addConstraint(Sketcher.Constraint("Coincident", 14, 3, 2, 3))
sketch15.addConstraint(Sketcher.Constraint("Coincident", 17, 3, 2, 3))
sketch15.addConstraint(Sketcher.Constraint("Coincident", 20, 3, 2, 3))
sketch15.addConstraint(Sketcher.Constraint("Coincident", 23, 3, 2, 3))
sketch15.addConstraint(Sketcher.Constraint("Coincident", 26, 3, 2, 3))
sketch15.addConstraint(Sketcher.Constraint("Coincident", 29, 3, 2, 3))
sketch15.addConstraint(Sketcher.Constraint("DistanceX", 2, 3, -1, 1, 11.0))
sketch15.addConstraint(Sketcher.Constraint("DistanceY", -1, 1, 2, 3, 225.0))
sketch15.addConstraint(Sketcher.Constraint("DistanceY", -1, 1, 0, 2, 225.0))
sketch15.addConstraint(Sketcher.Constraint("DistanceY", -1, 1, 27, 2, 225.0))
sketch15.addConstraint(Sketcher.Constraint("Radius", 2, 7.344542))
sketch15.addConstraint(Sketcher.Constraint("Radius", 5, 7.344542))
sketch15.addConstraint(Sketcher.Constraint("Radius", 8, 7.344542))
sketch15.addConstraint(Sketcher.Constraint("Radius", 11, 7.344542))
sketch15.addConstraint(Sketcher.Constraint("Radius", 14, 7.344542))
sketch15.addConstraint(Sketcher.Constraint("Radius", 17, 7.344542))
sketch15.addConstraint(Sketcher.Constraint("Radius", 20, 7.344542))
sketch15.addConstraint(Sketcher.Constraint("Radius", 23, 7.344542))
sketch15.addConstraint(Sketcher.Constraint("Radius", 26, 7.344542))
sketch15.addConstraint(Sketcher.Constraint("Radius", 29, 7.344542))
sketch15.addConstraint(Sketcher.Constraint("DistanceX", 1, 2, 2, 1, 0.189799))
sketch15.addConstraint(Sketcher.Constraint("DistanceY", 1, 2, 2, 1, 1.076401))
sketch15.addConstraint(Sketcher.Constraint("DistanceX", 0, 2, 3, 2, 0.5599))
sketch15.addConstraint(Sketcher.Constraint("DistanceX", 9, 2, 8, 1, 0.352802))
sketch15.addConstraint(Sketcher.Constraint("DistanceY", 7, 2, 9, 2, 2.780901))
sketch15.addConstraint(Sketcher.Constraint("DistanceY", 10, 2, 9, 2, 1.3447))
sketch15.addConstraint(Sketcher.Constraint("DistanceY", 17, 1, 18, 2, 1.3447))
sketch15.addConstraint(Sketcher.Constraint("DistanceX", 19, 2, 18, 2, 0.352802))
sketch15.addConstraint(Sketcher.Constraint("DistanceY", 20, 1, 17, 1, 1.436201))
sketch15.addConstraint(Sketcher.Constraint("DistanceX", 25, 2, 26, 1, 0.189799))
sketch15.addConstraint(Sketcher.Constraint("DistanceY", 26, 1, 25, 2, 1.076401))
sketch15.addConstraint(Sketcher.Constraint("DistanceX", 24, 2, 27, 2, 0.5599))
sketch15.addConstraint(Sketcher.Constraint("DistanceX", 25, 2, 28, 2, 0.189799))
sketch15.addConstraint(Sketcher.Constraint("DistanceX", 29, 1, 2, 1, 0.189799))
sketch15.addConstraint(Sketcher.Constraint("DistanceY", -1, 1, 3, 2, 228.175348))
sketch15.addConstraint(Sketcher.Constraint("DistanceX", 4, 2, -1, 1, 17.616179))
sketch15.addConstraint(Sketcher.Constraint("DistanceX", 6, 2, -1, 1, 18.112031))
sketch15.addConstraint(Sketcher.Constraint("DistanceX", 7, 2, -1, 1, 16.126539))
sketch15.addConstraint(Sketcher.Constraint("DistanceX", 9, 2, -1, 1, 15.642049))
sketch15.addConstraint(Sketcher.Constraint("DistanceY", -1, 1, 12, 2, 234.143051))
sketch15.addConstraint(Sketcher.Constraint("DistanceY", -1, 1, 13, 2, 232.324181))
sketch15.addConstraint(Sketcher.Constraint("DistanceY", -1, 1, 14, 1, 232.324181))
sketch15.addConstraint(Sketcher.Constraint("DistanceY", -1, 1, 15, 2, 234.143051))
sketch15.addConstraint(Sketcher.Constraint("DistanceX", 18, 2, -1, 1, 6.357951))
sketch15.addConstraint(Sketcher.Constraint("DistanceX", 20, 1, -1, 1, 5.873461))
sketch15.addConstraint(Sketcher.Constraint("DistanceX", 21, 2, -1, 1, 3.887969))
sketch15.addConstraint(Sketcher.Constraint("DistanceX", 23, 1, -1, 1, 4.383821))
sketch15.addConstraint(Sketcher.Constraint("DistanceY", -1, 1, 24, 2, 228.175348))
sketch15.addConstraint(Sketcher.Constraint("DistanceX", 3, 2, 4, 2, 2.108019))
sketch15.addConstraint(Sketcher.Constraint("DistanceY", 4, 2, 5, 1, 0.946571))
sketch15.addConstraint(Sketcher.Constraint("DistanceY", 2, 1, 6, 2, 4.157671))
sketch15.addConstraint(Sketcher.Constraint("DistanceX", 10, 2, 11, 1, 1.02709))
sketch15.addConstraint(Sketcher.Constraint("DistanceX", 8, 1, 12, 2, 2.67708))
sketch15.addConstraint(Sketcher.Constraint("DistanceX", 13, 2, 15, 2, 2.15867))
sketch15.addConstraint(Sketcher.Constraint("DistanceX", 14, 1, 16, 2, 1.444969))
sketch15.addConstraint(Sketcher.Constraint("DistanceY", 20, 1, 21, 2, 0.70834))
sketch15.addConstraint(Sketcher.Constraint("DistanceX", 19, 2, 22, 2, 1.780428))
sketch15.addConstraint(Sketcher.Constraint("DistanceX", 23, 1, 24, 2, 2.108019))
pad5 = body.newObject("PartDesign::Pad", "Pad004")
pad5.Profile = sketch15
pad5.setExpression("Length", "Params.pad5_length")

doc.recompute()
